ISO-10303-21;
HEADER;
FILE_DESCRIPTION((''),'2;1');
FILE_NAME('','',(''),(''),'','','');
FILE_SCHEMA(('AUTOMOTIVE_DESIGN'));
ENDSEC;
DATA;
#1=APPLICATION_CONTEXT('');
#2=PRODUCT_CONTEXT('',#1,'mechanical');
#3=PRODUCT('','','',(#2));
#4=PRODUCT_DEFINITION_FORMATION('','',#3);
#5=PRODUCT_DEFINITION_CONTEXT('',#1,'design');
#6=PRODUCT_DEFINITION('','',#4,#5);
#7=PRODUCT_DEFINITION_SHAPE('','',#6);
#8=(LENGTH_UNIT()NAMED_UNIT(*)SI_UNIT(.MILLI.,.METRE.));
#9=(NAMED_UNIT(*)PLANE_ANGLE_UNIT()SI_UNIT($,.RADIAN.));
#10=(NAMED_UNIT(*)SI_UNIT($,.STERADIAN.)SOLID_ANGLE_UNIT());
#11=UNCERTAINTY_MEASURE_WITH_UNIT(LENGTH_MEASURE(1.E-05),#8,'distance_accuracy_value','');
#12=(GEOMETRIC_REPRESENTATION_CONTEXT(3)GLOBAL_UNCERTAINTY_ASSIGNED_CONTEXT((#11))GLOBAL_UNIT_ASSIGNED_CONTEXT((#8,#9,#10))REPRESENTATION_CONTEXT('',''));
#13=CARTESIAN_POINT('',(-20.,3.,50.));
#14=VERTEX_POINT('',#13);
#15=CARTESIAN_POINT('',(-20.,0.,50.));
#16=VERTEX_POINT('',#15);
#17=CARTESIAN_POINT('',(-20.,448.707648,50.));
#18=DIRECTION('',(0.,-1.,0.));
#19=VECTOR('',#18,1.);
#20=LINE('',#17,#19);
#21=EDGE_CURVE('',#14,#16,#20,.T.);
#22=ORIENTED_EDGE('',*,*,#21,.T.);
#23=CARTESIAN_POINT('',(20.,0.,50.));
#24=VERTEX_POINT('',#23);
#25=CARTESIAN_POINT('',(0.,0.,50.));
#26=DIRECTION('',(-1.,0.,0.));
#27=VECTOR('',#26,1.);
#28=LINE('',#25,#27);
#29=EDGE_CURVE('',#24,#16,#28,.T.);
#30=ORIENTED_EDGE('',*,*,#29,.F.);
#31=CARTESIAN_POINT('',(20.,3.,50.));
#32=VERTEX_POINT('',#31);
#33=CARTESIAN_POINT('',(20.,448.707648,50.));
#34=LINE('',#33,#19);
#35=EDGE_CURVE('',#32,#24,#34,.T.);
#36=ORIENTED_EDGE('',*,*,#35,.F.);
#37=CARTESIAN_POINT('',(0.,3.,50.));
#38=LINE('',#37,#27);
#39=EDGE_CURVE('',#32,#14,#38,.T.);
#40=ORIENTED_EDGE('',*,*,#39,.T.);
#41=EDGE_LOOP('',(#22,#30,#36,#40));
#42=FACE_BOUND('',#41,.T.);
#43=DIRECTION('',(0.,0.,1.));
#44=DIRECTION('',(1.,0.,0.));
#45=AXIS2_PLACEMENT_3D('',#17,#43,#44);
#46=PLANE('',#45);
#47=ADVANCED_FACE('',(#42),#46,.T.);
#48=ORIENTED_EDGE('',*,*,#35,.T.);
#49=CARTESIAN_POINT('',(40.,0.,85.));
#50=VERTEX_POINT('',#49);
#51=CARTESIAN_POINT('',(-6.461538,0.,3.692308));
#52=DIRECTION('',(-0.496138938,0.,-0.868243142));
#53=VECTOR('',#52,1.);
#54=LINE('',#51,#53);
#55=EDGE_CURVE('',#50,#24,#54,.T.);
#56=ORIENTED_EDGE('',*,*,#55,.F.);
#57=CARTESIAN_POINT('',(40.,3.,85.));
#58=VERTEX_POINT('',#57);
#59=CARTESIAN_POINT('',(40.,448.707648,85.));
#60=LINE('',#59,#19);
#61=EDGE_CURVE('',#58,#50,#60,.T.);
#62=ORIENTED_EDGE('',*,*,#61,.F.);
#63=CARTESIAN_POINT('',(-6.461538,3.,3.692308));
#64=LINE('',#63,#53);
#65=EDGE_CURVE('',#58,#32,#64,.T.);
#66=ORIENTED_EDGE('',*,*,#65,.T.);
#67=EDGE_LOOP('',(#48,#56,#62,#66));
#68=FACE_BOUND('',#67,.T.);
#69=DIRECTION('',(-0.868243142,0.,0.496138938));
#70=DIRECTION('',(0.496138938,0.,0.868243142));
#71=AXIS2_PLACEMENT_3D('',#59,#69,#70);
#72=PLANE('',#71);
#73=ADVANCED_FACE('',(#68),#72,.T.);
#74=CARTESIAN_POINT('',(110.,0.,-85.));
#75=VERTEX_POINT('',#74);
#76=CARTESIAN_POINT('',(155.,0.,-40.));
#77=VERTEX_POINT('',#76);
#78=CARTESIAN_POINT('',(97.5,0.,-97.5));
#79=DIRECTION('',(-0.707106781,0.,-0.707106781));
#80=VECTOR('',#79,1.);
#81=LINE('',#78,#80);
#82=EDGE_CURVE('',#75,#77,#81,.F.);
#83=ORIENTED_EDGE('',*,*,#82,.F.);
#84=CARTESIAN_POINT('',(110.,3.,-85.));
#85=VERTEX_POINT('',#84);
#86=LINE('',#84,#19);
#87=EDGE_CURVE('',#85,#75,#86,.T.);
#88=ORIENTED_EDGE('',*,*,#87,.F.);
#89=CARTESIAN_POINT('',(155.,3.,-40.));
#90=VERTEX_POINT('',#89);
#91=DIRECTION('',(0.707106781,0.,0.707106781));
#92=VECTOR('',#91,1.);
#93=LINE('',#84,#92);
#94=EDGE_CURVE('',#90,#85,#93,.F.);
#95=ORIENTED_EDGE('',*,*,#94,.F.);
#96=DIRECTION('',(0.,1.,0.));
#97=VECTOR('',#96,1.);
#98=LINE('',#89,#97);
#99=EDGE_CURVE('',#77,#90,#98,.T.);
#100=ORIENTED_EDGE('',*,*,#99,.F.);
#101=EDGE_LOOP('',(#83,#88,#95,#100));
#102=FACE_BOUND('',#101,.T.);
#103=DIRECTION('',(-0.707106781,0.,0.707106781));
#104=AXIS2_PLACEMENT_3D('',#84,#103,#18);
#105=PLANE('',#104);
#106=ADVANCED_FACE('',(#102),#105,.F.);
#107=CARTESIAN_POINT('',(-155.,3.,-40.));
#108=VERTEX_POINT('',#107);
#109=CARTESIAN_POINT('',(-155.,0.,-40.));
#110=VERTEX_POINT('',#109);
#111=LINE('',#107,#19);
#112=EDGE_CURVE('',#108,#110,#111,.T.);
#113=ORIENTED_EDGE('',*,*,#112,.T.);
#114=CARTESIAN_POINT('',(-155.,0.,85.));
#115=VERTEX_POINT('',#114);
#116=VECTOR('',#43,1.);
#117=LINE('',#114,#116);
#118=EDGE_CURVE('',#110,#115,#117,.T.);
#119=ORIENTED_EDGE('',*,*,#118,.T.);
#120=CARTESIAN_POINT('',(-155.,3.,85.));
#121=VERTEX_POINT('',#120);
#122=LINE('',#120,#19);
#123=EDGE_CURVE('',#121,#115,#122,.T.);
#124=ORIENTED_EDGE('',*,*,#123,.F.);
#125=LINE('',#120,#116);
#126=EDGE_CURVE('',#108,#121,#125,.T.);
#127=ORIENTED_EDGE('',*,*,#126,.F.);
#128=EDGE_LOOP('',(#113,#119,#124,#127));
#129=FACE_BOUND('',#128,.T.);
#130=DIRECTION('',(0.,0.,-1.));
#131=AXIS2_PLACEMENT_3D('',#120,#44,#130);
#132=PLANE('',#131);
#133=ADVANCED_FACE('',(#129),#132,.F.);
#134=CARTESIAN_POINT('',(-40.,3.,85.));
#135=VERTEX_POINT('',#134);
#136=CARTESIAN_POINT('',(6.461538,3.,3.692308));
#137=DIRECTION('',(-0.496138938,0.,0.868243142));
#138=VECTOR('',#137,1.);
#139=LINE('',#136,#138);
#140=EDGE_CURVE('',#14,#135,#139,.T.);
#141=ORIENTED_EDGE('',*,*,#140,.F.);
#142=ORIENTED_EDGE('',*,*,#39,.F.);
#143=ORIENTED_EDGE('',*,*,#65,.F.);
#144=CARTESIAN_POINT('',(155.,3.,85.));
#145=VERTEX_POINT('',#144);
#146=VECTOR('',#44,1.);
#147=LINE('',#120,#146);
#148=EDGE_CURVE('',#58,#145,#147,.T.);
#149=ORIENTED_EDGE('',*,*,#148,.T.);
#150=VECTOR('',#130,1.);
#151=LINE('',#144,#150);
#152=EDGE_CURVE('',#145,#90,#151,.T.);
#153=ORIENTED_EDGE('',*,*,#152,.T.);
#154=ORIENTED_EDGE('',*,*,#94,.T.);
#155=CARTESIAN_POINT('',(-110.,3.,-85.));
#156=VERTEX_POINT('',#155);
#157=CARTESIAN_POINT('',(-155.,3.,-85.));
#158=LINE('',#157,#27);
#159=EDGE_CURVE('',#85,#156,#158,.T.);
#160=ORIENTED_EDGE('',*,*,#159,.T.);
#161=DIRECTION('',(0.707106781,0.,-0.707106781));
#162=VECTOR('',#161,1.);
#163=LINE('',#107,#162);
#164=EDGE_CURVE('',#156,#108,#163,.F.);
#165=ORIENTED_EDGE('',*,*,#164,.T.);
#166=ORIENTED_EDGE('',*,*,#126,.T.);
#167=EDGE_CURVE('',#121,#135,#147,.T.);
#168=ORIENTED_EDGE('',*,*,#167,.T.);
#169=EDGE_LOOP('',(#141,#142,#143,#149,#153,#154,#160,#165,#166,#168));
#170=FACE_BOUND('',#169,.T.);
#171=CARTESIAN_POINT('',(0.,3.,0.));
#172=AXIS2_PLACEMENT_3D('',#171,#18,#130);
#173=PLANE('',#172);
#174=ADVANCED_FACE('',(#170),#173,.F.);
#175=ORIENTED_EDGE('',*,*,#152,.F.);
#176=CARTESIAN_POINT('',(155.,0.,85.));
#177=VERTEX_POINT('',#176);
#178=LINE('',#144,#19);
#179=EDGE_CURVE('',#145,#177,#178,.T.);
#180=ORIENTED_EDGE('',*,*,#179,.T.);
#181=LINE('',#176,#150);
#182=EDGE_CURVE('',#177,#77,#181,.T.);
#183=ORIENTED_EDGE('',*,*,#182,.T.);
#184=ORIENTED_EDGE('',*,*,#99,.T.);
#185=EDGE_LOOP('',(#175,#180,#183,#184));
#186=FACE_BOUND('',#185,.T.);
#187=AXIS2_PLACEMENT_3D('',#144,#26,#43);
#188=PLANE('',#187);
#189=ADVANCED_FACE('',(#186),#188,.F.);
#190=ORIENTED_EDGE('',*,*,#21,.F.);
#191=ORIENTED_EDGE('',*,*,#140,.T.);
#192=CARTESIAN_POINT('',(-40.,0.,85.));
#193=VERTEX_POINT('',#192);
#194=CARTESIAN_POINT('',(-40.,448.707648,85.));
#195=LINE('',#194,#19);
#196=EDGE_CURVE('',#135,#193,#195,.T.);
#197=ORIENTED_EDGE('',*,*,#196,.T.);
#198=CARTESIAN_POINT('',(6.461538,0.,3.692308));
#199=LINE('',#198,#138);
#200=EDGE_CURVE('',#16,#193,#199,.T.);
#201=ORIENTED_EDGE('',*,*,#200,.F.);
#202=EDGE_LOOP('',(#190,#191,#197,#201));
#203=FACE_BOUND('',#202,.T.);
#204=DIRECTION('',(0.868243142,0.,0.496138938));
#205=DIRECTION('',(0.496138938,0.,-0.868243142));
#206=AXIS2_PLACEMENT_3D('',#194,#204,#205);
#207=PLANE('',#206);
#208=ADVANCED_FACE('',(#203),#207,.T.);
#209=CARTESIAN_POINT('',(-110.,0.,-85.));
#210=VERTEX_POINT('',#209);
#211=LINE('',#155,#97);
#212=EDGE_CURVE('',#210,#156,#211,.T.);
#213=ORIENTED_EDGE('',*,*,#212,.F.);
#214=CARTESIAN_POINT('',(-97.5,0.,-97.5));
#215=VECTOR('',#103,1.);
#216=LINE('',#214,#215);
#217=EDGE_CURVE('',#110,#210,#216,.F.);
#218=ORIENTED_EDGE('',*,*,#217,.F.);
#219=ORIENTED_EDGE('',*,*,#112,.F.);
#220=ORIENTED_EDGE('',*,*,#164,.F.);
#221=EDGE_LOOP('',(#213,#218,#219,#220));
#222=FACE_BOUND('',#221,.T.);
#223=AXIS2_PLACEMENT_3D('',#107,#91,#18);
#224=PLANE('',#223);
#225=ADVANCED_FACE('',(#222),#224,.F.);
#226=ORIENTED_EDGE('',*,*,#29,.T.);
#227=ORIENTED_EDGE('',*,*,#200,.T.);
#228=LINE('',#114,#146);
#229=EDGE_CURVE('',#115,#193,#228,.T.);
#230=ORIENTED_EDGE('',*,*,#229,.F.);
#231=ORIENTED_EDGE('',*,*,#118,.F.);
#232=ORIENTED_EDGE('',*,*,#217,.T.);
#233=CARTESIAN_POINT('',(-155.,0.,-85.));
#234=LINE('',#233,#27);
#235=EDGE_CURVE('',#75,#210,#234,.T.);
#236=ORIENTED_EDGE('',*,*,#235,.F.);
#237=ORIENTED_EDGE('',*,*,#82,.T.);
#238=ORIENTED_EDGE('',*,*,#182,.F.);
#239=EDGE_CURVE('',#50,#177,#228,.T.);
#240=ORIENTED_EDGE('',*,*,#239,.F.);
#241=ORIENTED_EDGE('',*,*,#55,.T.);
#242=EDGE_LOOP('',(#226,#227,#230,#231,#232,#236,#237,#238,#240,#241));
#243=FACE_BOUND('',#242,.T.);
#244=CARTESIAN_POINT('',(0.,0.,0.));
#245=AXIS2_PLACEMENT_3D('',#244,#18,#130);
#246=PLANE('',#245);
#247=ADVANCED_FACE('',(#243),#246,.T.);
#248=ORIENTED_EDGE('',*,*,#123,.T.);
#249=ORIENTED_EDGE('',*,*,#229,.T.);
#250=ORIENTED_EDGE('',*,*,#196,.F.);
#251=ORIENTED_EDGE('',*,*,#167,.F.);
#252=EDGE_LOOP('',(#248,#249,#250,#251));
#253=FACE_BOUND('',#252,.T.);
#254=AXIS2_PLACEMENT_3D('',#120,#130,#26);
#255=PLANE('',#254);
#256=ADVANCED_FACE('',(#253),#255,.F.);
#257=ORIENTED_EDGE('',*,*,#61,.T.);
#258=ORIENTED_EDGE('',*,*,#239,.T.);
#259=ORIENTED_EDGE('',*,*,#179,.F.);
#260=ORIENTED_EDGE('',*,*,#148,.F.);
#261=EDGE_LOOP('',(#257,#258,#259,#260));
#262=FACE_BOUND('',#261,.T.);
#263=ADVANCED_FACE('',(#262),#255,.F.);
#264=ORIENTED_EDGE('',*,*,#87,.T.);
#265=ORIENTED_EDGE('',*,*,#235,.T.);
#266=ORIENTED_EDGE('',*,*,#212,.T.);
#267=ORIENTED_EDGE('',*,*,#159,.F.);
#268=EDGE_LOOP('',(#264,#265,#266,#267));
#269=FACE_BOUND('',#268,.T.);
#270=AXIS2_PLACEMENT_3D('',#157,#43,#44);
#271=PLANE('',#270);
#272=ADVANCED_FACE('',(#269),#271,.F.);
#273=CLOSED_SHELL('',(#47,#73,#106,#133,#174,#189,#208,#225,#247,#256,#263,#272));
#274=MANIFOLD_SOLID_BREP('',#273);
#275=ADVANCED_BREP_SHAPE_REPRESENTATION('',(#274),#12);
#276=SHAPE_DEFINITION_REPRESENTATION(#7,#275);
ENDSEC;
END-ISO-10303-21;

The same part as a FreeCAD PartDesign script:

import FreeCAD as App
import Part
import Sketcher

V = App.Vector


def edges_at(feature, points):
    """Names of the edges that pass closest to the given points."""
    edges = feature.Shape.Edges
    near = lambda p: min(range(len(edges)), key=lambda i: edges[i].distToShape(Part.Vertex(*p))[0])
    return sorted({f"Edge{near(p) + 1}" for p in points})

doc = App.newDocument("Part")
body = doc.addObject("PartDesign::Body", "Body")

sketch1 = body.newObject("Sketcher::SketchObject", "Sketch")
sketch1.AttachmentSupport = (doc.getObject("XZ_Plane"), [""])
sketch1.MapMode = "FlatFace"
sketch1.addGeometry(Part.LineSegment(V(-155, -85, 0), V(-155, 85, 0)), False)
sketch1.addGeometry(Part.LineSegment(V(-155, 85, 0), V(155, 85, 0)), False)
sketch1.addGeometry(Part.LineSegment(V(155, 85, 0), V(155, -85, 0)), False)
sketch1.addGeometry(Part.LineSegment(V(155, -85, 0), V(-155, -85, 0)), False)
sketch1.addConstraint(Sketcher.Constraint("Coincident", 0, 2, 1, 1))
sketch1.addConstraint(Sketcher.Constraint("Coincident", 1, 2, 2, 1))
sketch1.addConstraint(Sketcher.Constraint("Coincident", 2, 2, 3, 1))
sketch1.addConstraint(Sketcher.Constraint("Coincident", 3, 2, 0, 1))
sketch1.addConstraint(Sketcher.Constraint("Vertical", 0))
sketch1.addConstraint(Sketcher.Constraint("Horizontal", 1))
sketch1.addConstraint(Sketcher.Constraint("Vertical", 2))
sketch1.addConstraint(Sketcher.Constraint("Horizontal", 3))
sketch1.addConstraint(Sketcher.Constraint("Symmetric", 0, 2, 2, 2, -1, 1))
sketch1.addConstraint(Sketcher.Constraint("DistanceX", 1, 1, 1, 2, 310.0))
sketch1.addConstraint(Sketcher.Constraint("DistanceY", 0, 1, 0, 2, 170.0))
pad1 = body.newObject("PartDesign::Pad", "Pad")
pad1.Profile = sketch1
pad1.Length = 3
pad1.Reversed = True

sketch2 = body.newObject("Sketcher::SketchObject", "Sketch001")
sketch2.AttachmentSupport = (doc.getObject("XZ_Plane"), [""])
sketch2.MapMode = "FlatFace"
sketch2.AttachmentOffset = App.Placement(V(0, 0, -3), App.Rotation())
sketch2.addGeometry(Part.LineSegment(V(-20, 50, 0), V(-40, 85, 0)), False)
sketch2.addGeometry(Part.LineSegment(V(-40, 85, 0), V(40, 85, 0)), False)
sketch2.addGeometry(Part.LineSegment(V(40, 85, 0), V(20, 50, 0)), False)
sketch2.addGeometry(Part.LineSegment(V(20, 50, 0), V(-20, 50, 0)), False)
sketch2.addConstraint(Sketcher.Constraint("Coincident", 0, 2, 1, 1))
sketch2.addConstraint(Sketcher.Constraint("Coincident", 1, 2, 2, 1))
sketch2.addConstraint(Sketcher.Constraint("Coincident", 2, 2, 3, 1))
sketch2.addConstraint(Sketcher.Constraint("Coincident", 3, 2, 0, 1))
sketch2.addConstraint(Sketcher.Constraint("Horizontal", 1))
sketch2.addConstraint(Sketcher.Constraint("Horizontal", 3))
sketch2.addConstraint(Sketcher.Constraint("Equal", 0, 2))
sketch2.addConstraint(Sketcher.Constraint("DistanceX", 1, 1, 1, 2, 80.0))
sketch2.addConstraint(Sketcher.Constraint("DistanceX", 3, 2, 3, 1, 40.0))
sketch2.addConstraint(Sketcher.Constraint("DistanceX", 0, 2, -1, 1, 40.0))
sketch2.addConstraint(Sketcher.Constraint("DistanceY", -1, 1, 0, 2, 85.0))
sketch2.addConstraint(Sketcher.Constraint("DistanceY", -1, 1, 2, 2, 50.0))
pocket1 = body.newObject("PartDesign::Pocket", "Pocket")
pocket1.Profile = sketch2
pocket1.Type = "ThroughAll"
pocket1.Midplane = True
doc.recompute()

chamfer = body.newObject("PartDesign::Chamfer", "Chamfer")
chamfer.Base = (pocket1, edges_at(pocket1, [(-155, 1.5, -85), (155, 1.5, -85)]))
chamfer.Size = 45

doc.recompute()
